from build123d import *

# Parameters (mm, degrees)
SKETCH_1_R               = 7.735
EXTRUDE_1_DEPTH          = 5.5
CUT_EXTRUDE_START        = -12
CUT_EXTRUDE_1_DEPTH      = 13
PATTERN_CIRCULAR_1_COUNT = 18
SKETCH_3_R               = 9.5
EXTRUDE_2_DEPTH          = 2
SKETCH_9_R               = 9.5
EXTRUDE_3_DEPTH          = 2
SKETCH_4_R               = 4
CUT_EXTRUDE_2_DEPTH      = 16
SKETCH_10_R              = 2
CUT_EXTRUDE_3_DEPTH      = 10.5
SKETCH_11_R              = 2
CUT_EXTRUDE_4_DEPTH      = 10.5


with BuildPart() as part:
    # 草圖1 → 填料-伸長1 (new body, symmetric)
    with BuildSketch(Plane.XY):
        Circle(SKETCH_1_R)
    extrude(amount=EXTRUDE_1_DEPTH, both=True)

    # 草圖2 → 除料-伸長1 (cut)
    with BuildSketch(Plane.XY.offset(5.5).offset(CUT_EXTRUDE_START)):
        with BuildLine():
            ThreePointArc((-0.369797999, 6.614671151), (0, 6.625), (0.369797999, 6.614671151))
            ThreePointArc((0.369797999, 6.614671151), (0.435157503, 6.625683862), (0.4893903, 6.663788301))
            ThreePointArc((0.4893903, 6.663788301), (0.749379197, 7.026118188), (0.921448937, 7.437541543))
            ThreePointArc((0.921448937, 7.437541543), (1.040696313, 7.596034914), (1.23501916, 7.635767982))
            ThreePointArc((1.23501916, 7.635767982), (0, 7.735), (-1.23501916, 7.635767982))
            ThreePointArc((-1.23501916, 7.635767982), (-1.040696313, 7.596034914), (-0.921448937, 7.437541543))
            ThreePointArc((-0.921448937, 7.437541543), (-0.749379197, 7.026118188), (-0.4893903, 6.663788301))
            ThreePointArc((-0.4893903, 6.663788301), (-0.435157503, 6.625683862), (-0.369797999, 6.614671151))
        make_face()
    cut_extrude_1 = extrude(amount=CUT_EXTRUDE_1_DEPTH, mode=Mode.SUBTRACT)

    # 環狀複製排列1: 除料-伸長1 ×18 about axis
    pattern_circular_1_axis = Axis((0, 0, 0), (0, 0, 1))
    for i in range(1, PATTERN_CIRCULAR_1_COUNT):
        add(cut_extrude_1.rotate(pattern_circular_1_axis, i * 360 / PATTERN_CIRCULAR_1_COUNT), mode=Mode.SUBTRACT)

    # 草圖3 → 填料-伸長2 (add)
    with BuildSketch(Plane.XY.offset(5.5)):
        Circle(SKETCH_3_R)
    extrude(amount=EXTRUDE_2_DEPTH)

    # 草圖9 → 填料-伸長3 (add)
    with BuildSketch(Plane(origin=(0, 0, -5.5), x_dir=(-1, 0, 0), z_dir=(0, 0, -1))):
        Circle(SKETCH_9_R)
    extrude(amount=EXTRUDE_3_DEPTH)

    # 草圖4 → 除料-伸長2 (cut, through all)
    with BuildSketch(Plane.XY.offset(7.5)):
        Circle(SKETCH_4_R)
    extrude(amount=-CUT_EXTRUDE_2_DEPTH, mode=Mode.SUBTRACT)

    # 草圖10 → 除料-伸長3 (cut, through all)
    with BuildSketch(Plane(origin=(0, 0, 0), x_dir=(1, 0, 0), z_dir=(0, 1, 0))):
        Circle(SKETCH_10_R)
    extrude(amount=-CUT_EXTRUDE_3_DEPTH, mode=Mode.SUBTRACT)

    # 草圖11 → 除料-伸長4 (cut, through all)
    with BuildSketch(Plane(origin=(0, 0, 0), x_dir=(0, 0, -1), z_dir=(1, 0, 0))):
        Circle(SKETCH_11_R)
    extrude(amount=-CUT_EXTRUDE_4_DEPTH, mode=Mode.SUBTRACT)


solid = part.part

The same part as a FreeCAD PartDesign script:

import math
import FreeCAD as App
import Part
import Sketcher

V = App.Vector

doc = App.newDocument("Part")
body = doc.addObject("PartDesign::Body", "Body")

# Sketch on XY plane
sketch1 = body.newObject("Sketcher::SketchObject", "Sketch")
sketch1.AttachmentSupport = (doc.getObject("XY_Plane"), [""])
sketch1.MapMode = "FlatFace"
sketch1.addGeometry(Part.Circle(V(0, 0, 0), V(0, 0, 1), 8), False)
sketch1.addConstraint([
    Sketcher.Constraint("Coincident", 0, 3, -1, 1),
    Sketcher.Constraint("Diameter", 0, 15.47),
])
pad1 = body.newObject("PartDesign::Pad", "Pad")
pad1.Profile = sketch1
pad1.Length = 11
pad1.Midplane = True

# Sketch on XY plane
sketch2 = body.newObject("Sketcher::SketchObject", "Sketch001")
sketch2.AttachmentSupport = (doc.getObject("XY_Plane"), [""])
sketch2.MapMode = "FlatFace"
sketch2.AttachmentOffset = App.Placement(V(0, 0, -6.5), App.Rotation())
sketch2.addGeometry([
    Part.ArcOfCircle(Part.Circle(V(0, 0, 0), V(0, 0, 1), 6.62), math.radians(86.8), math.radians(93.2)),  # 0
    Part.ArcOfCircle(Part.Circle(V(0.38, 6.76, 0), V(0, 0, 1), 0.15), math.radians(-93), math.radians(-42)),  # 1
    Part.ArcOfCircle(Part.Circle(V(-0.98, 7.99, 0), V(0, 0, 1), 1.98), math.radians(-42), math.radians(-16)),  # 2
    Part.ArcOfCircle(Part.Circle(V(1.19, 7.36, 0), V(0, 0, 1), 0.28), math.radians(81), math.radians(164)),  # 3
    Part.ArcOfCircle(Part.Circle(V(0, 0, 0), V(0, 0, 1), 7.74), math.radians(80.81), math.radians(99.19)),  # 4
    Part.ArcOfCircle(Part.Circle(V(-1.19, 7.36, 0), V(0, 0, 1), 0.28), math.radians(16), math.radians(99)),  # 5
    Part.ArcOfCircle(Part.Circle(V(0.98, 7.99, 0), V(0, 0, 1), 1.98), math.radians(-164), math.radians(-138)),  # 6
    Part.ArcOfCircle(Part.Circle(V(-0.38, 6.76, 0), V(0, 0, 1), 0.15), math.radians(-138), math.radians(-87)),  # 7
], False)
sketch2.addConstraint([
    Sketcher.Constraint("Tangent", 0, 1, 1, 1),
    Sketcher.Constraint("Tangent", 1, 2, 2, 1),
    Sketcher.Constraint("Tangent", 2, 2, 3, 2),
    Sketcher.Constraint("Tangent", 3, 1, 4, 1),
    Sketcher.Constraint("Tangent", 4, 2, 5, 2),
    Sketcher.Constraint("Tangent", 5, 1, 6, 1),
    Sketcher.Constraint("Tangent", 6, 2, 7, 1),
    Sketcher.Constraint("Tangent", 7, 2, 0, 2),
    Sketcher.Constraint("Coincident", 0, 3, -1, 1),
    Sketcher.Constraint("Coincident", 4, 3, -1, 1),
    Sketcher.Constraint("Equal", 3, 5),
    Sketcher.Constraint("Equal", 2, 6),
    Sketcher.Constraint("Equal", 1, 7),
    Sketcher.Constraint("Symmetric", 2, 3, 6, 3, -2),
    Sketcher.Constraint("Radius", 1, 0.15),
    Sketcher.Constraint("Radius", 3, 0.28),
    Sketcher.Constraint("Radius", 0, 6.625),
    Sketcher.Constraint("Radius", 2, 1.975),
    Sketcher.Constraint("Radius", 4, 7.735),
    Sketcher.Constraint("DistanceX", 2, 3, 6, 3, 1.95),
    Sketcher.Constraint("DistanceY", -1, 1, 2, 3, 7.989),
])
pocket1 = body.newObject("PartDesign::Pocket", "Pocket")
pocket1.Profile = sketch2
pocket1.Length = 13
pocket1.Reversed = True
doc.recompute()

polarpattern = body.newObject("PartDesign::PolarPattern", "PolarPattern")
polarpattern.Originals = [pocket1]
polarpattern.Axis = (doc.getObject("Z_Axis"), [""])
polarpattern.Angle = 360
polarpattern.Occurrences = 18
body.Tip = polarpattern

# Sketch on XY plane
sketch3 = body.newObject("Sketcher::SketchObject", "Sketch002")
sketch3.AttachmentSupport = (doc.getObject("XY_Plane"), [""])
sketch3.MapMode = "FlatFace"
sketch3.AttachmentOffset = App.Placement(V(0, 0, 5.5), App.Rotation())
sketch3.addGeometry(Part.Circle(V(0, 0, 0), V(0, 0, 1), 10), False)
sketch3.addConstraint([
    Sketcher.Constraint("Coincident", 0, 3, -1, 1),
    Sketcher.Constraint("Diameter", 0, 19.0),
])
pad2 = body.newObject("PartDesign::Pad", "Pad001")
pad2.Profile = sketch3
pad2.Length = 2

# Sketch on XY plane
sketch4 = body.newObject("Sketcher::SketchObject", "Sketch003")
sketch4.AttachmentSupport = (doc.getObject("XY_Plane"), [""])
sketch4.MapMode = "FlatFace"
sketch4.AttachmentOffset = App.Placement(V(0, 0, -5.5), App.Rotation())
sketch4.addGeometry(Part.Circle(V(0, 0, 0), V(0, 0, 1), 10), False)
sketch4.addConstraint([
    Sketcher.Constraint("Coincident", 0, 3, -1, 1),
    Sketcher.Constraint("Diameter", 0, 19.0),
])
pad3 = body.newObject("PartDesign::Pad", "Pad002")
pad3.Profile = sketch4
pad3.Length = 2
pad3.Reversed = True

# Sketch on XY plane
sketch5 = body.newObject("Sketcher::SketchObject", "Sketch004")
sketch5.AttachmentSupport = (doc.getObject("XY_Plane"), [""])
sketch5.MapMode = "FlatFace"
sketch5.AttachmentOffset = App.Placement(V(0, 0, 7.5), App.Rotation())
sketch5.addGeometry(Part.Circle(V(0, 0, 0), V(0, 0, 1), 4), False)
sketch5.addConstraint([
    Sketcher.Constraint("Coincident", 0, 3, -1, 1),
    Sketcher.Constraint("Diameter", 0, 8.0),
])
pocket2 = body.newObject("PartDesign::Pocket", "Pocket001")
pocket2.Profile = sketch5
pocket2.Type = "ThroughAll"

# Sketch on XZ plane
sketch6 = body.newObject("Sketcher::SketchObject", "Sketch005")
sketch6.AttachmentSupport = (doc.getObject("XZ_Plane"), [""])
sketch6.MapMode = "FlatFace"
sketch6.addGeometry(Part.Circle(V(0, 0, 0), V(0, 0, 1), 2), False)
sketch6.addConstraint([
    Sketcher.Constraint("Coincident", 0, 3, -1, 1),
    Sketcher.Constraint("Diameter", 0, 4.0),
])
pocket3 = body.newObject("PartDesign::Pocket", "Pocket002")
pocket3.Profile = sketch6
pocket3.Type = "ThroughAll"
pocket3.Reversed = True

# Sketch on YZ plane
sketch7 = body.newObject("Sketcher::SketchObject", "Sketch006")
sketch7.AttachmentSupport = (doc.getObject("YZ_Plane"), [""])
sketch7.MapMode = "FlatFace"
sketch7.addGeometry(Part.Circle(V(0, 0, 0), V(0, 0, 1), 2), False)
sketch7.addConstraint([
    Sketcher.Constraint("Coincident", 0, 3, -1, 1),
    Sketcher.Constraint("Diameter", 0, 4.0),
])
pocket4 = body.newObject("PartDesign::Pocket", "Pocket003")
pocket4.Profile = sketch7
pocket4.Type = "ThroughAll"

doc.recompute()
